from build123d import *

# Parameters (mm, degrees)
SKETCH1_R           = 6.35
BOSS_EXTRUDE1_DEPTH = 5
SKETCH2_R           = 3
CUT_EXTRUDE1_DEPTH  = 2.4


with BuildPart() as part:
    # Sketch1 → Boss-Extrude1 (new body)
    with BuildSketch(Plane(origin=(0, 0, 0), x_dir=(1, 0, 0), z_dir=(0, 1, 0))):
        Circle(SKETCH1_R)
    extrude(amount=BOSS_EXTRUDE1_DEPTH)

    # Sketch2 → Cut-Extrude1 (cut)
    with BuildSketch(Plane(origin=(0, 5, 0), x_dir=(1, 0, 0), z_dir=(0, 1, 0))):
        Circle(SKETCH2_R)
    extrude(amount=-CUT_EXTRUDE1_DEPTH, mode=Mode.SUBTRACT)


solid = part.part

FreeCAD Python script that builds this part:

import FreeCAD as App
import Part
import Sketcher
from FreeCAD import Vector

doc = App.newDocument("Part")
params = doc.addObject("Spreadsheet::Sheet", "Params")
for row, (alias, value) in enumerate([
    ("sketch1_diameter", "12.7 mm"),
    ("pad1_length", "5 mm"),
    ("sketch2_diameter", "6 mm"),
    ("pocket1_length", "2.4 mm"),
], start=1):
    params.set(f"A{row}", alias)
    params.set(f"B{row}", "=" + value)
    params.setAlias(f"B{row}", alias)

body = doc.addObject("PartDesign::Body", "Body")

# Sketch on XZ plane
sketch1 = body.newObject("Sketcher::SketchObject", "Sketch")
sketch1.AttachmentSupport = (doc.getObject("XZ_Plane"), [""])
sketch1.MapMode = "FlatFace"
sketch1.addGeometry(Part.Circle(Vector(0, 0, 0), Vector(0, 0, 1), 6), False)
sketch1.addConstraint(Sketcher.Constraint("Coincident", 0, 3, -1, 1))
sketch1.addConstraint(Sketcher.Constraint("Diameter", 0, 12.7))
sketch1.setExpression("Constraints[1]", "Params.sketch1_diameter")
pad1 = body.newObject("PartDesign::Pad", "Pad")
pad1.Profile = sketch1
pad1.setExpression("Length", "Params.pad1_length")
pad1.Reversed = True

# Sketch on XZ plane
sketch2 = body.newObject("Sketcher::SketchObject", "Sketch001")
sketch2.AttachmentSupport = (doc.getObject("XZ_Plane"), [""])
sketch2.MapMode = "FlatFace"
sketch2.AttachmentOffset = App.Placement(Vector(0, 0, -5), App.Rotation())
sketch2.addGeometry(Part.Circle(Vector(0, 0, 0), Vector(0, 0, 1), 3), False)
sketch2.addConstraint(Sketcher.Constraint("Coincident", 0, 3, -1, 1))
sketch2.addConstraint(Sketcher.Constraint("Diameter", 0, 6.0))
sketch2.setExpression("Constraints[1]", "Params.sketch2_diameter")
pocket1 = body.newObject("PartDesign::Pocket", "Pocket")
pocket1.Profile = sketch2
pocket1.setExpression("Length", "Params.pocket1_length")
pocket1.Reversed = True

doc.recompute()
